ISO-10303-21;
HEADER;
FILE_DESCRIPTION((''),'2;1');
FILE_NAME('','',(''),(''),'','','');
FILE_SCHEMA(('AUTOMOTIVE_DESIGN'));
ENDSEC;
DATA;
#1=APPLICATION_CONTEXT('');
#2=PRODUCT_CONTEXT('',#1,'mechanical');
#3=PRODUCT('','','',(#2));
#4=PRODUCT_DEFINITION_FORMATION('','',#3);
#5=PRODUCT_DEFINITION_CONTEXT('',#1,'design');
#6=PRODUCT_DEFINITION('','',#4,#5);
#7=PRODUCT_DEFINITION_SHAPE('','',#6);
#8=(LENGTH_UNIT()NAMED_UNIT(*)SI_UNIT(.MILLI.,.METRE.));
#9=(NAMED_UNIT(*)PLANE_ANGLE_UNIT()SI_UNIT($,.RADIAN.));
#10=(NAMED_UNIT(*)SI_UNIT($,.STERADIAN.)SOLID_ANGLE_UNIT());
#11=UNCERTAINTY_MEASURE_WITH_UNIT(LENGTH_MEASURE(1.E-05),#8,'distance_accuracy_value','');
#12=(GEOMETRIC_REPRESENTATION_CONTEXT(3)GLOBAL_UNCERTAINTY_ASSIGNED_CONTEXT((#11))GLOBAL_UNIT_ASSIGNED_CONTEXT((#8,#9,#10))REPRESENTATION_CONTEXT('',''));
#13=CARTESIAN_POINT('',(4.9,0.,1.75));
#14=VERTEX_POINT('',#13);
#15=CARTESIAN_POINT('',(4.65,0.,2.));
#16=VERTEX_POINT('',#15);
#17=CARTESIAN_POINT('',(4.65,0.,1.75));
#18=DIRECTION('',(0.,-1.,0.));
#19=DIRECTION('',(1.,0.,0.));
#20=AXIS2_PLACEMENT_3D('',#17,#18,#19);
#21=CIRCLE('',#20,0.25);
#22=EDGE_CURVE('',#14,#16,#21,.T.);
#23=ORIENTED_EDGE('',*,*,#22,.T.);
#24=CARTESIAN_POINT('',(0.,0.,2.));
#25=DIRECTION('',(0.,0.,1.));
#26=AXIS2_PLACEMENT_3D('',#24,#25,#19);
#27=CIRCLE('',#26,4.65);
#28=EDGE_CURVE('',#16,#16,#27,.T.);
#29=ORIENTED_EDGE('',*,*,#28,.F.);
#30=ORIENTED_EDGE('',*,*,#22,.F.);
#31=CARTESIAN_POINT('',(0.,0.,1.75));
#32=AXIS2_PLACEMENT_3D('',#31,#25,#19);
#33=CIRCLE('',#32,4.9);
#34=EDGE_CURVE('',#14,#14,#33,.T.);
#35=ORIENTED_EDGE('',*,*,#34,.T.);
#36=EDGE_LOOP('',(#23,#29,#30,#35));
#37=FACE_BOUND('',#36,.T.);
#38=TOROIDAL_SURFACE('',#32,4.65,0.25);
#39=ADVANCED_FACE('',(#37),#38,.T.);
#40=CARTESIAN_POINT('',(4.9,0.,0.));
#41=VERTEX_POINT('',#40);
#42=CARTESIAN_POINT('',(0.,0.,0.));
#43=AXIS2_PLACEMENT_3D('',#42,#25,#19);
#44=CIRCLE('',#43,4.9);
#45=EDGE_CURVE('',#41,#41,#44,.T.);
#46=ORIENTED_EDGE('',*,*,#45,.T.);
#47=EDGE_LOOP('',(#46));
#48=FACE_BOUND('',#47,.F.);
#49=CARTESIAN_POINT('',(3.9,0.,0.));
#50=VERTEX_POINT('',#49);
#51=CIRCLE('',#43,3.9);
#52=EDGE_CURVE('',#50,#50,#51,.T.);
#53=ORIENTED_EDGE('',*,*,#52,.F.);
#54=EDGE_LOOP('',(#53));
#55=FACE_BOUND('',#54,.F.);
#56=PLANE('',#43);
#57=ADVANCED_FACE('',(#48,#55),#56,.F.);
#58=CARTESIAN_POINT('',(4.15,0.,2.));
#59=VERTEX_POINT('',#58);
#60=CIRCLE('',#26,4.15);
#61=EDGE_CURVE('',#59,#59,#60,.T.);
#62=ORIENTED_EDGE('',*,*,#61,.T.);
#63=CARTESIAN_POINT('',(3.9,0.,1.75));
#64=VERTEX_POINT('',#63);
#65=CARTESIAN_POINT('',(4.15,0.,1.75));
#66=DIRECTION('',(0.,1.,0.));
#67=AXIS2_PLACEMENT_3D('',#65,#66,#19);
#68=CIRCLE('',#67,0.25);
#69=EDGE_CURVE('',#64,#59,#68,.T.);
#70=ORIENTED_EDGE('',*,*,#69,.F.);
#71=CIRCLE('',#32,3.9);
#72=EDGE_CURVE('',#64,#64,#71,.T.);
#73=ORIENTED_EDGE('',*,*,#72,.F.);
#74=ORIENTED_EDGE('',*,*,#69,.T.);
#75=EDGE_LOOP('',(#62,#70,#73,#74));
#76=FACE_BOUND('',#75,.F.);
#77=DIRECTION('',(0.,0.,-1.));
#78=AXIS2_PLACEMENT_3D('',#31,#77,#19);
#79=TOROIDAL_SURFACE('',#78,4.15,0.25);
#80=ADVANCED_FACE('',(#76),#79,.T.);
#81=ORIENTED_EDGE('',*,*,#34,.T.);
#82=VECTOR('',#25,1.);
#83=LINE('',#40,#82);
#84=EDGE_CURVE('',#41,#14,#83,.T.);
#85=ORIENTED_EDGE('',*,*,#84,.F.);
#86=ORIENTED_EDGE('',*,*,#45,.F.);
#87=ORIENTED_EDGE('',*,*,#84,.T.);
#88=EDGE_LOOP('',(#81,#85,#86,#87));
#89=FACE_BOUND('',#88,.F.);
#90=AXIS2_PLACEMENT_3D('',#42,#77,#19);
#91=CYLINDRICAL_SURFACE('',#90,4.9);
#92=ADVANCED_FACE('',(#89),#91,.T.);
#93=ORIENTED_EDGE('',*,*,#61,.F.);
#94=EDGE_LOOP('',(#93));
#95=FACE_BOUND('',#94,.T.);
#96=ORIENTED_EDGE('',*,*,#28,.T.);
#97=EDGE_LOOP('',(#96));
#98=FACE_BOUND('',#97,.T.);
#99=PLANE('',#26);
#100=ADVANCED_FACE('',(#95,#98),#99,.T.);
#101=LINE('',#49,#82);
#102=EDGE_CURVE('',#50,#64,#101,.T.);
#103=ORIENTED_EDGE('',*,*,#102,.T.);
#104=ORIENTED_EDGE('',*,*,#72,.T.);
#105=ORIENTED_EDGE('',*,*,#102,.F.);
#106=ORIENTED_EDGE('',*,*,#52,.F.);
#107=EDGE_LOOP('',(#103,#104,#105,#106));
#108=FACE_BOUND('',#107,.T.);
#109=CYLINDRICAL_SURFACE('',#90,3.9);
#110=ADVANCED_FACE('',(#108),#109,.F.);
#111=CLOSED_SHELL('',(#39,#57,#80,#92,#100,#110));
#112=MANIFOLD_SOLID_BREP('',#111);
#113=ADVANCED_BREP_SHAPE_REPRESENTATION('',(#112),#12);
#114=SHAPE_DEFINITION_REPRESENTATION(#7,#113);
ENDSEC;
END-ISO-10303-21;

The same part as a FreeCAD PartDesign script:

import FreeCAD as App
import Part
import Sketcher
Q = App.Units.Quantity


def edges_at(feature, points):
    """Names of the edges that pass closest to the given points."""
    edges = feature.Shape.Edges
    near = lambda p: min(range(len(edges)), key=lambda i: edges[i].distToShape(Part.Vertex(*p))[0])
    return sorted({f"Edge{near(p) + 1}" for p in points})

doc = App.newDocument("Part")
params = doc.addObject("Spreadsheet::Sheet", "Params")
for row, (alias, value) in enumerate([
    ("sketch1_diameter", "7.8 mm"),
    ("sketch1_diameter2", "9.8 mm"),
    ("pad1_length", "2 mm"),
    ("fillet_radius", "0.25 mm"),
], start=1):
    params.set(f"A{row}", alias)
    params.set(f"B{row}", "=" + value)
    params.setAlias(f"B{row}", alias)

body = doc.addObject("PartDesign::Body", "Body")

# Sketch on XY plane
sketch1 = body.newObject("Sketcher::SketchObject", "Sketch")
sketch1.AttachmentSupport = (doc.getObject("XY_Plane"), [""])
sketch1.MapMode = "FlatFace"
sketch1.addGeometry([
    Part.Circle(App.Vector(0, 0, 0), App.Vector(0, 0, 1), 4.9),
    Part.Circle(App.Vector(0, 0, 0), App.Vector(0, 0, 1), 3.9),
], False)
sketch1.addConstraint([
    Sketcher.Constraint("Coincident", 0, 3, -1, 1),
    Sketcher.Constraint("Coincident", 1, 3, -1, 1),
    Sketcher.Constraint("Diameter", 1, Q("7.8 mm")),
    Sketcher.Constraint("Diameter", 0, Q("9.8 mm")),
])
sketch1.setExpression("Constraints[2]", "Params.sketch1_diameter")
sketch1.setExpression("Constraints[3]", "Params.sketch1_diameter2")
pad1 = body.newObject("PartDesign::Pad", "Pad")
pad1.Profile = sketch1
pad1.setExpression("Length", "Params.pad1_length")
doc.recompute()

fillet = body.newObject("PartDesign::Fillet", "Fillet")
fillet.Base = (pad1, edges_at(pad1, [(-3.9, 0, 2), (-4.9, 0, 2)]))
fillet.setExpression("Radius", "Params.fillet_radius")

doc.recompute()
